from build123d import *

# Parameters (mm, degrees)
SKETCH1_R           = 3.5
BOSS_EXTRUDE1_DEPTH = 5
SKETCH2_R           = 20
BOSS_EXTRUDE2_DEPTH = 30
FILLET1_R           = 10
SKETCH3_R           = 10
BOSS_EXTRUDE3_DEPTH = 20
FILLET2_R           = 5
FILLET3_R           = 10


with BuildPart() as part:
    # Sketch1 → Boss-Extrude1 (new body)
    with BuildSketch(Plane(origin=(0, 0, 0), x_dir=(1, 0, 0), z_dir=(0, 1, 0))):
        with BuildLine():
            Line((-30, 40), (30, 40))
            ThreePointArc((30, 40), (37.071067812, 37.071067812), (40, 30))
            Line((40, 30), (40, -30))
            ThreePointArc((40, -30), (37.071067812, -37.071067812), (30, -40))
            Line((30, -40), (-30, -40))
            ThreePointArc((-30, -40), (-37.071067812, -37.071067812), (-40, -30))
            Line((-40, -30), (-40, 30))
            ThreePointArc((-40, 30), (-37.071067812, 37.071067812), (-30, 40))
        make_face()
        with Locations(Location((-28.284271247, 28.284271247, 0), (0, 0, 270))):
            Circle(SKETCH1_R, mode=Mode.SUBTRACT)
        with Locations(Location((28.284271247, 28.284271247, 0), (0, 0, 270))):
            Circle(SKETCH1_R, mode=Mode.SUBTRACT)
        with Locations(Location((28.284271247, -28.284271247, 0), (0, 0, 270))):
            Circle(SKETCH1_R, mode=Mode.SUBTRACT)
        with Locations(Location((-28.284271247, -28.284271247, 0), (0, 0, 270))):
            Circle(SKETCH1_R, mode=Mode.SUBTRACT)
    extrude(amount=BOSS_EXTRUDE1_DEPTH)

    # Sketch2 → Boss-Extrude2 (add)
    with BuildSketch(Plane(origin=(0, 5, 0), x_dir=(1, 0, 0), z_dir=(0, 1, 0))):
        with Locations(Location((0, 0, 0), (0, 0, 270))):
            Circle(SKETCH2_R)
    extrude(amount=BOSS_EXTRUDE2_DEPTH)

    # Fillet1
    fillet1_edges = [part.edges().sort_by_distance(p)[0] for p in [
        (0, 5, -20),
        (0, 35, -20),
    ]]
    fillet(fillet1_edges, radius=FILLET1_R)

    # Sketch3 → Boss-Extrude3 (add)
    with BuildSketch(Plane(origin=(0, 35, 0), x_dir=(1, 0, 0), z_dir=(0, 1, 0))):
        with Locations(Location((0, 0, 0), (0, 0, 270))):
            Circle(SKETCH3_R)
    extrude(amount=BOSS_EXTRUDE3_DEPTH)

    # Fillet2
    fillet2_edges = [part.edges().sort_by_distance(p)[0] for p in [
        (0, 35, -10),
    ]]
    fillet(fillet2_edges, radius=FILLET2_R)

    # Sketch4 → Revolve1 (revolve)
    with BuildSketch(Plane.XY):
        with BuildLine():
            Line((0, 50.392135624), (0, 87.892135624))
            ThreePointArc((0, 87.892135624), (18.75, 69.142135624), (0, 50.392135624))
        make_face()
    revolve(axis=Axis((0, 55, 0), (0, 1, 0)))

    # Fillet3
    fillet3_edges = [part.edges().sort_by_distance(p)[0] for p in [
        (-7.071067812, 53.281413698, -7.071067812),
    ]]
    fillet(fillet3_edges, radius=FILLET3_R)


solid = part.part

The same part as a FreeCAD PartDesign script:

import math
import FreeCAD as App
import Part
import Sketcher

V = App.Vector
Q = App.Units.Quantity


def edges_at(feature, points):
    """Names of the edges that pass closest to the given points."""
    edges = feature.Shape.Edges
    near = lambda p: min(range(len(edges)), key=lambda i: edges[i].distToShape(Part.Vertex(*p))[0])
    return sorted({f"Edge{near(p) + 1}" for p in points})

doc = App.newDocument("Part")
body = doc.addObject("PartDesign::Body", "Body")

sketch1 = body.newObject("Sketcher::SketchObject", "Sketch")
sketch1.AttachmentSupport = (doc.getObject("XZ_Plane"), [""])
sketch1.MapMode = "FlatFace"
sketch1.addGeometry([
    Part.LineSegment(V(30, -40, 0), V(-30, -40, 0)),
    Part.ArcOfCircle(Part.Circle(V(-30, -30, 0), V(0, 0, 1), 10), math.radians(180), math.radians(270)),
    Part.LineSegment(V(-40, -30, 0), V(-40, 30, 0)),
    Part.ArcOfCircle(Part.Circle(V(-30, 30, 0), V(0, 0, 1), 10), math.radians(90), math.radians(180)),
    Part.LineSegment(V(-30, 40, 0), V(30, 40, 0)),
    Part.ArcOfCircle(Part.Circle(V(30, 30, 0), V(0, 0, 1), 10), math.radians(0), math.radians(90)),
    Part.LineSegment(V(40, 30, 0), V(40, -30, 0)),
    Part.ArcOfCircle(Part.Circle(V(30, -30, 0), V(0, 0, 1), 10), math.radians(-90), math.radians(0)),
    Part.Circle(V(28.3, 28.3, 0), V(0, 0, 1), 3.5),
    Part.Circle(V(-28.3, 28.3, 0), V(0, 0, 1), 3.5),
    Part.Circle(V(28.3, -28.3, 0), V(0, 0, 1), 3.5),
    Part.Circle(V(-28.3, -28.3, 0), V(0, 0, 1), 3.5),
], False)
sketch1.addConstraint([
    Sketcher.Constraint("Tangent", 0, 2, 1, 2),
    Sketcher.Constraint("Tangent", 1, 1, 2, 1),
    Sketcher.Constraint("Tangent", 2, 2, 3, 2),
    Sketcher.Constraint("Tangent", 3, 1, 4, 1),
    Sketcher.Constraint("Tangent", 4, 2, 5, 2),
    Sketcher.Constraint("Tangent", 5, 1, 6, 1),
    Sketcher.Constraint("Tangent", 6, 2, 7, 2),
    Sketcher.Constraint("Tangent", 7, 1, 0, 1),
    Sketcher.Constraint("Horizontal", 0),
    Sketcher.Constraint("Vertical", 2),
    Sketcher.Constraint("Horizontal", 4),
    Sketcher.Constraint("Vertical", 6),
    Sketcher.Constraint("Equal", 1, 3),
    Sketcher.Constraint("Equal", 3, 5),
    Sketcher.Constraint("Equal", 5, 7),
    Sketcher.Constraint("Equal", 8, 9),
    Sketcher.Constraint("Equal", 9, 10),
    Sketcher.Constraint("Equal", 10, 11),
    Sketcher.Constraint("Symmetric", 1, 3, 5, 3, -1, 1),
    Sketcher.Constraint("Symmetric", 9, 3, 10, 3, -1, 1),
    Sketcher.Constraint("Symmetric", 8, 3, 11, 3, -1, 1),
    Sketcher.Constraint("Symmetric", 8, 3, 9, 3, -2),
    Sketcher.Constraint("Equal", 4, 2),
    Sketcher.Constraint("Diameter", 8, Q("7 mm")),
    Sketcher.Constraint("Radius", 1, Q("10 mm")),
    Sketcher.Constraint("DistanceX", 0, 2, 0, 1, Q("60 mm")),
    Sketcher.Constraint("DistanceX", -1, 1, 8, 3, Q("28.284271 mm")),
    Sketcher.Constraint("DistanceY", -1, 1, 8, 3, Q("28.284271 mm")),
])
pad1 = body.newObject("PartDesign::Pad", "Pad")
pad1.Profile = sketch1
pad1.Length = 5
pad1.Reversed = True

sketch2 = body.newObject("Sketcher::SketchObject", "Sketch001")
sketch2.AttachmentSupport = (doc.getObject("XZ_Plane"), [""])
sketch2.MapMode = "FlatFace"
sketch2.AttachmentOffset = App.Placement(V(0, 0, -5), App.Rotation())
sketch2.addGeometry(Part.Circle(V(0, 0, 0), V(0, 0, 1), 20), False)
sketch2.addConstraint([
    Sketcher.Constraint("Coincident", 0, 3, -1, 1),
    Sketcher.Constraint("Diameter", 0, Q("40 mm")),
])
pad2 = body.newObject("PartDesign::Pad", "Pad001")
pad2.Profile = sketch2
pad2.Length = 30
pad2.Reversed = True
doc.recompute()

fillet = body.newObject("PartDesign::Fillet", "Fillet")
fillet.Base = (pad2, edges_at(pad2, [(0, 5, -20), (0, 35, -20)]))
fillet.Radius = 10

sketch3 = body.newObject("Sketcher::SketchObject", "Sketch002")
sketch3.AttachmentSupport = (doc.getObject("XZ_Plane"), [""])
sketch3.MapMode = "FlatFace"
sketch3.AttachmentOffset = App.Placement(V(0, 0, -35), App.Rotation())
sketch3.addGeometry(Part.Circle(V(0, 0, 0), V(0, 0, 1), 10), False)
sketch3.addConstraint([
    Sketcher.Constraint("Coincident", 0, 3, -1, 1),
    Sketcher.Constraint("Diameter", 0, Q("20 mm")),
])
pad3 = body.newObject("PartDesign::Pad", "Pad002")
pad3.Profile = sketch3
pad3.Length = 20
pad3.Reversed = True
doc.recompute()

fillet2 = body.newObject("PartDesign::Fillet", "Fillet001")
fillet2.Base = (pad3, edges_at(pad3, [(0, 35, -10)]))
fillet2.Radius = 5

sketch4 = body.newObject("Sketcher::SketchObject", "Sketch003")
sketch4.AttachmentSupport = (doc.getObject("XY_Plane"), [""])
sketch4.MapMode = "FlatFace"
sketch4.addGeometry([
    Part.LineSegment(V(0, 88, 0), V(0, 50, 0)),
    Part.ArcOfCircle(Part.Circle(V(0, 69, 0), V(0, 0, 1), 19), math.radians(-90), math.radians(90)),
], False)
sketch4.addConstraint([
    Sketcher.Constraint("Coincident", 0, 1, 1, 2),
    Sketcher.Constraint("Coincident", 1, 1, 0, 2),
    Sketcher.Constraint("Vertical", 0),
    Sketcher.Constraint("PointOnObject", 1, 3, -2),
    Sketcher.Constraint("PointOnObject", 0, 1, -2),
    Sketcher.Constraint("Radius", 1, Q("18.75 mm")),
    Sketcher.Constraint("DistanceY", -1, 1, 1, 3, Q("69.142136 mm")),
])
revolution = body.newObject("PartDesign::Revolution", "Revolution")
revolution.Profile = sketch4
revolution.ReferenceAxis = (sketch4, ["V_Axis"])
revolution.Angle = 360
doc.recompute()

fillet3 = body.newObject("PartDesign::Fillet", "Fillet002")
fillet3.Base = (revolution, edges_at(revolution, [(-7.071, 53.281, -7.071)]))
fillet3.Radius = 10

doc.recompute()
